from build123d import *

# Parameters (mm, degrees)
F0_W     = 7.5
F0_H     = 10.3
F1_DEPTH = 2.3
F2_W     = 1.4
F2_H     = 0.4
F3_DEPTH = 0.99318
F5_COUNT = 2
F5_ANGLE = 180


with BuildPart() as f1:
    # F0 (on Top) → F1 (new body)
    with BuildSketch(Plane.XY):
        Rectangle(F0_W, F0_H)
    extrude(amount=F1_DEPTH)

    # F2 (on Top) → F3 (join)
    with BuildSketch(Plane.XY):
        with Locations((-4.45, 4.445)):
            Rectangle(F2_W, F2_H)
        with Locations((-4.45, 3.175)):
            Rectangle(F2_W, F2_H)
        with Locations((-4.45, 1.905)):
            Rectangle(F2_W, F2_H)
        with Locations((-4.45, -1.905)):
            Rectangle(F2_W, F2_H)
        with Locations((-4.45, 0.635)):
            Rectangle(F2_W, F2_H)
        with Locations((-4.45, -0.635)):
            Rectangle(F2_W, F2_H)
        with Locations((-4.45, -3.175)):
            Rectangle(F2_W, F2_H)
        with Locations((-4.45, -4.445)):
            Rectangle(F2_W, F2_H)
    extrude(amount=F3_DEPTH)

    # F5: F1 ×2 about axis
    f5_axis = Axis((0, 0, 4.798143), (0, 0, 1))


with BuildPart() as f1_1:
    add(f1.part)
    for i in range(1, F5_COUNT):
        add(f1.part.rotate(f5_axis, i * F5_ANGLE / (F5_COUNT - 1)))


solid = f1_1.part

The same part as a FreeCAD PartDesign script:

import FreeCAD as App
import Part
import Sketcher

V = App.Vector

doc = App.newDocument("Part")
body = doc.addObject("PartDesign::Body", "Body")

# Sketch on XY plane
sketch1 = body.newObject("Sketcher::SketchObject", "Sketch")
sketch1.AttachmentSupport = (doc.getObject("XY_Plane"), [""])
sketch1.MapMode = "FlatFace"
sketch1.addGeometry(Part.LineSegment(V(-4, 5, 0), V(-4, -5, 0)), False)
sketch1.addGeometry(Part.LineSegment(V(-4, -5, 0), V(4, -5, 0)), False)
sketch1.addGeometry(Part.LineSegment(V(4, -5, 0), V(4, 5, 0)), False)
sketch1.addGeometry(Part.LineSegment(V(4, 5, 0), V(-4, 5, 0)), False)
sketch1.addConstraint(Sketcher.Constraint("Coincident", 0, 2, 1, 1))
sketch1.addConstraint(Sketcher.Constraint("Coincident", 1, 2, 2, 1))
sketch1.addConstraint(Sketcher.Constraint("Coincident", 2, 2, 3, 1))
sketch1.addConstraint(Sketcher.Constraint("Coincident", 3, 2, 0, 1))
sketch1.addConstraint(Sketcher.Constraint("Vertical", 0))
sketch1.addConstraint(Sketcher.Constraint("Horizontal", 1))
sketch1.addConstraint(Sketcher.Constraint("Vertical", 2))
sketch1.addConstraint(Sketcher.Constraint("Horizontal", 3))
sketch1.addConstraint(Sketcher.Constraint("Symmetric", 0, 2, 2, 2, -1, 1))
sketch1.addConstraint(Sketcher.Constraint("DistanceX", 1, 1, 1, 2, 7.5))
sketch1.addConstraint(Sketcher.Constraint("DistanceY", 0, 2, 0, 1, 10.3))
pad1 = body.newObject("PartDesign::Pad", "Pad")
pad1.Profile = sketch1
pad1.Length = 2.3

# Sketch on XY plane
sketch2 = body.newObject("Sketcher::SketchObject", "Sketch001")
sketch2.AttachmentSupport = (doc.getObject("XY_Plane"), [""])
sketch2.MapMode = "FlatFace"
sketch2.addGeometry(Part.LineSegment(V(-5.15, 4.64, 0), V(-5.15, 4.25, 0)), False)
sketch2.addGeometry(Part.LineSegment(V(-5.15, 4.25, 0), V(-3.75, 4.25, 0)), False)
sketch2.addGeometry(Part.LineSegment(V(-3.75, 4.25, 0), V(-3.75, 4.64, 0)), False)
sketch2.addGeometry(Part.LineSegment(V(-3.75, 4.64, 0), V(-5.15, 4.64, 0)), False)
sketch2.addGeometry(Part.LineSegment(V(-5.15, 3.38, 0), V(-5.15, 2.98, 0)), False)
sketch2.addGeometry(Part.LineSegment(V(-5.15, 2.98, 0), V(-3.75, 2.98, 0)), False)
sketch2.addGeometry(Part.LineSegment(V(-3.75, 2.98, 0), V(-3.75, 3.38, 0)), False)
sketch2.addGeometry(Part.LineSegment(V(-3.75, 3.38, 0), V(-5.15, 3.38, 0)), False)
sketch2.addGeometry(Part.LineSegment(V(-5.15, 2.1, 0), V(-5.15, 1.71, 0)), False)
sketch2.addGeometry(Part.LineSegment(V(-5.15, 1.71, 0), V(-3.75, 1.71, 0)), False)
sketch2.addGeometry(Part.LineSegment(V(-3.75, 1.71, 0), V(-3.75, 2.1, 0)), False)
sketch2.addGeometry(Part.LineSegment(V(-3.75, 2.1, 0), V(-5.15, 2.1, 0)), False)
sketch2.addGeometry(Part.LineSegment(V(-5.15, -1.71, 0), V(-5.15, -2.1, 0)), False)
sketch2.addGeometry(Part.LineSegment(V(-5.15, -2.1, 0), V(-3.75, -2.1, 0)), False)
sketch2.addGeometry(Part.LineSegment(V(-3.75, -2.1, 0), V(-3.75, -1.71, 0)), False)
sketch2.addGeometry(Part.LineSegment(V(-3.75, -1.71, 0), V(-5.15, -1.71, 0)), False)
sketch2.addGeometry(Part.LineSegment(V(-5.15, 0.83, 0), V(-5.15, 0.43, 0)), False)
sketch2.addGeometry(Part.LineSegment(V(-5.15, 0.43, 0), V(-3.75, 0.43, 0)), False)
sketch2.addGeometry(Part.LineSegment(V(-3.75, 0.43, 0), V(-3.75, 0.83, 0)), False)
sketch2.addGeometry(Part.LineSegment(V(-3.75, 0.83, 0), V(-5.15, 0.83, 0)), False)
sketch2.addGeometry(Part.LineSegment(V(-5.15, -0.43, 0), V(-5.15, -0.83, 0)), False)
sketch2.addGeometry(Part.LineSegment(V(-5.15, -0.83, 0), V(-3.75, -0.83, 0)), False)
sketch2.addGeometry(Part.LineSegment(V(-3.75, -0.83, 0), V(-3.75, -0.43, 0)), False)
sketch2.addGeometry(Part.LineSegment(V(-3.75, -0.43, 0), V(-5.15, -0.43, 0)), False)
sketch2.addGeometry(Part.LineSegment(V(-5.15, -2.98, 0), V(-5.15, -3.38, 0)), False)
sketch2.addGeometry(Part.LineSegment(V(-5.15, -3.38, 0), V(-3.75, -3.38, 0)), False)
sketch2.addGeometry(Part.LineSegment(V(-3.75, -3.38, 0), V(-3.75, -2.98, 0)), False)
sketch2.addGeometry(Part.LineSegment(V(-3.75, -2.98, 0), V(-5.15, -2.98, 0)), False)
sketch2.addGeometry(Part.LineSegment(V(-5.15, -4.25, 0), V(-5.15, -4.64, 0)), False)
sketch2.addGeometry(Part.LineSegment(V(-5.15, -4.64, 0), V(-3.75, -4.64, 0)), False)
sketch2.addGeometry(Part.LineSegment(V(-3.75, -4.64, 0), V(-3.75, -4.25, 0)), False)
sketch2.addGeometry(Part.LineSegment(V(-3.75, -4.25, 0), V(-5.15, -4.25, 0)), False)
sketch2.addConstraint(Sketcher.Constraint("Coincident", 0, 2, 1, 1))
sketch2.addConstraint(Sketcher.Constraint("Coincident", 1, 2, 2, 1))
sketch2.addConstraint(Sketcher.Constraint("Coincident", 2, 2, 3, 1))
sketch2.addConstraint(Sketcher.Constraint("Coincident", 3, 2, 0, 1))
sketch2.addConstraint(Sketcher.Constraint("Coincident", 4, 2, 5, 1))
sketch2.addConstraint(Sketcher.Constraint("Coincident", 5, 2, 6, 1))
sketch2.addConstraint(Sketcher.Constraint("Coincident", 6, 2, 7, 1))
sketch2.addConstraint(Sketcher.Constraint("Coincident", 7, 2, 4, 1))
sketch2.addConstraint(Sketcher.Constraint("Coincident", 8, 2, 9, 1))
sketch2.addConstraint(Sketcher.Constraint("Coincident", 9, 2, 10, 1))
sketch2.addConstraint(Sketcher.Constraint("Coincident", 10, 2, 11, 1))
sketch2.addConstraint(Sketcher.Constraint("Coincident", 11, 2, 8, 1))
sketch2.addConstraint(Sketcher.Constraint("Coincident", 12, 2, 13, 1))
sketch2.addConstraint(Sketcher.Constraint("Coincident", 13, 2, 14, 1))
sketch2.addConstraint(Sketcher.Constraint("Coincident", 14, 2, 15, 1))
sketch2.addConstraint(Sketcher.Constraint("Coincident", 15, 2, 12, 1))
sketch2.addConstraint(Sketcher.Constraint("Coincident", 16, 2, 17, 1))
sketch2.addConstraint(Sketcher.Constraint("Coincident", 17, 2, 18, 1))
sketch2.addConstraint(Sketcher.Constraint("Coincident", 18, 2, 19, 1))
sketch2.addConstraint(Sketcher.Constraint("Coincident", 19, 2, 16, 1))
sketch2.addConstraint(Sketcher.Constraint("Coincident", 20, 2, 21, 1))
sketch2.addConstraint(Sketcher.Constraint("Coincident", 21, 2, 22, 1))
sketch2.addConstraint(Sketcher.Constraint("Coincident", 22, 2, 23, 1))
sketch2.addConstraint(Sketcher.Constraint("Coincident", 23, 2, 20, 1))
sketch2.addConstraint(Sketcher.Constraint("Coincident", 24, 2, 25, 1))
sketch2.addConstraint(Sketcher.Constraint("Coincident", 25, 2, 26, 1))
sketch2.addConstraint(Sketcher.Constraint("Coincident", 26, 2, 27, 1))
sketch2.addConstraint(Sketcher.Constraint("Coincident", 27, 2, 24, 1))
sketch2.addConstraint(Sketcher.Constraint("Coincident", 28, 2, 29, 1))
sketch2.addConstraint(Sketcher.Constraint("Coincident", 29, 2, 30, 1))
sketch2.addConstraint(Sketcher.Constraint("Coincident", 30, 2, 31, 1))
sketch2.addConstraint(Sketcher.Constraint("Coincident", 31, 2, 28, 1))
sketch2.addConstraint(Sketcher.Constraint("Vertical", 0))
sketch2.addConstraint(Sketcher.Constraint("Horizontal", 1))
sketch2.addConstraint(Sketcher.Constraint("Vertical", 2))
sketch2.addConstraint(Sketcher.Constraint("Horizontal", 3))
sketch2.addConstraint(Sketcher.Constraint("Vertical", 4))
sketch2.addConstraint(Sketcher.Constraint("Horizontal", 5))
sketch2.addConstraint(Sketcher.Constraint("Vertical", 6))
sketch2.addConstraint(Sketcher.Constraint("Horizontal", 7))
sketch2.addConstraint(Sketcher.Constraint("Vertical", 8))
sketch2.addConstraint(Sketcher.Constraint("Horizontal", 9))
sketch2.addConstraint(Sketcher.Constraint("Vertical", 10))
sketch2.addConstraint(Sketcher.Constraint("Horizontal", 11))
sketch2.addConstraint(Sketcher.Constraint("Vertical", 12))
sketch2.addConstraint(Sketcher.Constraint("Horizontal", 13))
sketch2.addConstraint(Sketcher.Constraint("Vertical", 14))
sketch2.addConstraint(Sketcher.Constraint("Horizontal", 15))
sketch2.addConstraint(Sketcher.Constraint("Vertical", 16))
sketch2.addConstraint(Sketcher.Constraint("Horizontal", 17))
sketch2.addConstraint(Sketcher.Constraint("Vertical", 18))
sketch2.addConstraint(Sketcher.Constraint("Horizontal", 19))
sketch2.addConstraint(Sketcher.Constraint("Vertical", 20))
sketch2.addConstraint(Sketcher.Constraint("Horizontal", 21))
sketch2.addConstraint(Sketcher.Constraint("Vertical", 22))
sketch2.addConstraint(Sketcher.Constraint("Horizontal", 23))
sketch2.addConstraint(Sketcher.Constraint("Vertical", 24))
sketch2.addConstraint(Sketcher.Constraint("Horizontal", 25))
sketch2.addConstraint(Sketcher.Constraint("Vertical", 26))
sketch2.addConstraint(Sketcher.Constraint("Horizontal", 27))
sketch2.addConstraint(Sketcher.Constraint("Vertical", 28))
sketch2.addConstraint(Sketcher.Constraint("Horizontal", 29))
sketch2.addConstraint(Sketcher.Constraint("Vertical", 30))
sketch2.addConstraint(Sketcher.Constraint("Horizontal", 31))
sketch2.addConstraint(Sketcher.Constraint("Symmetric", 11, 2, 12, 2, -1))
sketch2.addConstraint(Sketcher.Constraint("Symmetric", 9, 2, 14, 2, -1))
sketch2.addConstraint(Sketcher.Constraint("Symmetric", 19, 2, 20, 2, -1))
sketch2.addConstraint(Sketcher.Constraint("Symmetric", 17, 2, 22, 2, -1))
sketch2.addConstraint(Sketcher.Constraint("Symmetric", 7, 2, 24, 2, -1))
sketch2.addConstraint(Sketcher.Constraint("Symmetric", 5, 2, 26, 2, -1))
sketch2.addConstraint(Sketcher.Constraint("Symmetric", 3, 2, 28, 2, -1))
sketch2.addConstraint(Sketcher.Constraint("Symmetric", 1, 2, 30, 2, -1))
sketch2.addConstraint(Sketcher.Constraint("Vertical", 3, 2, 4, 2))
sketch2.addConstraint(Sketcher.Constraint("Vertical", 2, 2, 5, 2))
sketch2.addConstraint(Sketcher.Constraint("Vertical", 7, 2, 8, 2))
sketch2.addConstraint(Sketcher.Constraint("Vertical", 6, 2, 9, 2))
sketch2.addConstraint(Sketcher.Constraint("Vertical", 15, 2, 16, 2))
sketch2.addConstraint(Sketcher.Constraint("Vertical", 14, 2, 17, 2))
sketch2.addConstraint(Sketcher.Constraint("Equal", 2, 4))
sketch2.addConstraint(Sketcher.Constraint("Equal", 6, 8))
sketch2.addConstraint(Sketcher.Constraint("Equal", 14, 16))
sketch2.addConstraint(Sketcher.Constraint("DistanceX", 1, 1, 1, 2, 1.4))
sketch2.addConstraint(Sketcher.Constraint("DistanceY", 0, 2, 0, 1, 0.4))
sketch2.addConstraint(Sketcher.Constraint("DistanceX", 0, 2, -1, 1, 5.15))
sketch2.addConstraint(Sketcher.Constraint("DistanceY", 4, 2, 0, 2, 1.27))
sketch2.addConstraint(Sketcher.Constraint("DistanceY", 8, 2, 4, 2, 1.27))
sketch2.addConstraint(Sketcher.Constraint("DistanceY", 12, 2, 8, 2, 3.81))
sketch2.addConstraint(Sketcher.Constraint("DistanceY", 16, 2, 8, 2, 1.27))
pad2 = body.newObject("PartDesign::Pad", "Pad001")
pad2.Profile = sketch2
pad2.Length = 0.99318
body2 = doc.addObject("PartDesign::Body", "Body001")
doc.recompute()

body2.BaseFeature = body
doc.recompute()

body.Placement = App.Placement(V(0, 0, 0), App.Rotation(V(0, 0, 1), 180))
boolean = body2.newObject("PartDesign::Boolean", "Boolean")
boolean.Type = "Fuse"
boolean.addObjects([body])

doc.recompute()
